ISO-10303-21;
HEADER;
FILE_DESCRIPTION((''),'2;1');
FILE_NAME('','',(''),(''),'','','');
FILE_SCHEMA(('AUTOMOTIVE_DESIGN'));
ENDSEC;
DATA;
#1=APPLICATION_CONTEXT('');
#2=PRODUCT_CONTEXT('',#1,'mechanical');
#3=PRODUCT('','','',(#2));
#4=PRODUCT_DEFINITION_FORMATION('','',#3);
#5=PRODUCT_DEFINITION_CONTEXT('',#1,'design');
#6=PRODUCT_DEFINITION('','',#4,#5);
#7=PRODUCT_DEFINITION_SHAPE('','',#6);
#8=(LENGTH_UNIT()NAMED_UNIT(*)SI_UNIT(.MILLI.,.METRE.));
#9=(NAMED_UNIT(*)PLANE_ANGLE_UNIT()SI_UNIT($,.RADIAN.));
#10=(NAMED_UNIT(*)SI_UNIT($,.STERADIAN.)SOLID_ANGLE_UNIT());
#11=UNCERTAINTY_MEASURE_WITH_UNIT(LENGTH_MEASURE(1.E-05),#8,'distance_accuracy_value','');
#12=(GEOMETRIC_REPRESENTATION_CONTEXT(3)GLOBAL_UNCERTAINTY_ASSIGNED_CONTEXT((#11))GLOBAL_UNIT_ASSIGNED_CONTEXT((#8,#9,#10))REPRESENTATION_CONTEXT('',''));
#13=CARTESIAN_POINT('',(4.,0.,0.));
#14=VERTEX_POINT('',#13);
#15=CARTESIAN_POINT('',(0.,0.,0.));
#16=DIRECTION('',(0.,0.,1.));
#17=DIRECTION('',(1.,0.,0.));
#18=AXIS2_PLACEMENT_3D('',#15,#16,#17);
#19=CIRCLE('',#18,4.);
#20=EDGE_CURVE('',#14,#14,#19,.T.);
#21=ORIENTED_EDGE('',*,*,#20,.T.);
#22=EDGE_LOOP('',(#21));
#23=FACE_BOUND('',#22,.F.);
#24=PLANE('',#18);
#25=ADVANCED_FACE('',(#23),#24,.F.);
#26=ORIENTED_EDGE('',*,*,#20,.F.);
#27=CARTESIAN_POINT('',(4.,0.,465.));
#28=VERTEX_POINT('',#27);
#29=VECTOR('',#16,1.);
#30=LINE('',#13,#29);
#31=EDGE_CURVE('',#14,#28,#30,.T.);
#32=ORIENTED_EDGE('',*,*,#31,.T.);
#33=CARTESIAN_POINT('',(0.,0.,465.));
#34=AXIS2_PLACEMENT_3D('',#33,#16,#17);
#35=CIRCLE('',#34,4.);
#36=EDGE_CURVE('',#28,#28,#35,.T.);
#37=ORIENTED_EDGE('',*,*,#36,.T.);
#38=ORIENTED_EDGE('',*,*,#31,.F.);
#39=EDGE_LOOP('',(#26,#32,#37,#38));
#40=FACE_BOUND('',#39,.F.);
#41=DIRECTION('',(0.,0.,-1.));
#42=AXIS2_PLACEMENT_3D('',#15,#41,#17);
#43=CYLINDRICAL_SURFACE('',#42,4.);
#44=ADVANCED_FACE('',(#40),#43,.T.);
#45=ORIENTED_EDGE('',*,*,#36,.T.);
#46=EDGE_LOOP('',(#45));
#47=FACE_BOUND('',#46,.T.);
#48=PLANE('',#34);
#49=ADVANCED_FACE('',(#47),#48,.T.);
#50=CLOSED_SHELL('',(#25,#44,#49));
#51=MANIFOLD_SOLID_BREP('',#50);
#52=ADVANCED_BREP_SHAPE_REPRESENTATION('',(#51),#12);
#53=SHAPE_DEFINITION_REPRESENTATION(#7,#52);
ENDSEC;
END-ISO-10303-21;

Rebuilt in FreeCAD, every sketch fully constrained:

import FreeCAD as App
import Part
import Sketcher

V = App.Vector
Q = App.Units.Quantity

doc = App.newDocument("Part")
body = doc.addObject("PartDesign::Body", "Body")

# Sketch on XY plane
sketch1 = body.newObject("Sketcher::SketchObject", "Sketch")
sketch1.AttachmentSupport = (doc.getObject("XY_Plane"), [""])
sketch1.MapMode = "FlatFace"
sketch1.addGeometry(Part.Circle(V(0, 0, 0), V(0, 0, 1), 4), False)
sketch1.addConstraint([
    Sketcher.Constraint("Coincident", 0, 3, -1, 1),
    Sketcher.Constraint("Diameter", 0, Q("8 mm")),
])
pad1 = body.newObject("PartDesign::Pad", "Pad")
pad1.Profile = sketch1
pad1.Length = 465

doc.recompute()
